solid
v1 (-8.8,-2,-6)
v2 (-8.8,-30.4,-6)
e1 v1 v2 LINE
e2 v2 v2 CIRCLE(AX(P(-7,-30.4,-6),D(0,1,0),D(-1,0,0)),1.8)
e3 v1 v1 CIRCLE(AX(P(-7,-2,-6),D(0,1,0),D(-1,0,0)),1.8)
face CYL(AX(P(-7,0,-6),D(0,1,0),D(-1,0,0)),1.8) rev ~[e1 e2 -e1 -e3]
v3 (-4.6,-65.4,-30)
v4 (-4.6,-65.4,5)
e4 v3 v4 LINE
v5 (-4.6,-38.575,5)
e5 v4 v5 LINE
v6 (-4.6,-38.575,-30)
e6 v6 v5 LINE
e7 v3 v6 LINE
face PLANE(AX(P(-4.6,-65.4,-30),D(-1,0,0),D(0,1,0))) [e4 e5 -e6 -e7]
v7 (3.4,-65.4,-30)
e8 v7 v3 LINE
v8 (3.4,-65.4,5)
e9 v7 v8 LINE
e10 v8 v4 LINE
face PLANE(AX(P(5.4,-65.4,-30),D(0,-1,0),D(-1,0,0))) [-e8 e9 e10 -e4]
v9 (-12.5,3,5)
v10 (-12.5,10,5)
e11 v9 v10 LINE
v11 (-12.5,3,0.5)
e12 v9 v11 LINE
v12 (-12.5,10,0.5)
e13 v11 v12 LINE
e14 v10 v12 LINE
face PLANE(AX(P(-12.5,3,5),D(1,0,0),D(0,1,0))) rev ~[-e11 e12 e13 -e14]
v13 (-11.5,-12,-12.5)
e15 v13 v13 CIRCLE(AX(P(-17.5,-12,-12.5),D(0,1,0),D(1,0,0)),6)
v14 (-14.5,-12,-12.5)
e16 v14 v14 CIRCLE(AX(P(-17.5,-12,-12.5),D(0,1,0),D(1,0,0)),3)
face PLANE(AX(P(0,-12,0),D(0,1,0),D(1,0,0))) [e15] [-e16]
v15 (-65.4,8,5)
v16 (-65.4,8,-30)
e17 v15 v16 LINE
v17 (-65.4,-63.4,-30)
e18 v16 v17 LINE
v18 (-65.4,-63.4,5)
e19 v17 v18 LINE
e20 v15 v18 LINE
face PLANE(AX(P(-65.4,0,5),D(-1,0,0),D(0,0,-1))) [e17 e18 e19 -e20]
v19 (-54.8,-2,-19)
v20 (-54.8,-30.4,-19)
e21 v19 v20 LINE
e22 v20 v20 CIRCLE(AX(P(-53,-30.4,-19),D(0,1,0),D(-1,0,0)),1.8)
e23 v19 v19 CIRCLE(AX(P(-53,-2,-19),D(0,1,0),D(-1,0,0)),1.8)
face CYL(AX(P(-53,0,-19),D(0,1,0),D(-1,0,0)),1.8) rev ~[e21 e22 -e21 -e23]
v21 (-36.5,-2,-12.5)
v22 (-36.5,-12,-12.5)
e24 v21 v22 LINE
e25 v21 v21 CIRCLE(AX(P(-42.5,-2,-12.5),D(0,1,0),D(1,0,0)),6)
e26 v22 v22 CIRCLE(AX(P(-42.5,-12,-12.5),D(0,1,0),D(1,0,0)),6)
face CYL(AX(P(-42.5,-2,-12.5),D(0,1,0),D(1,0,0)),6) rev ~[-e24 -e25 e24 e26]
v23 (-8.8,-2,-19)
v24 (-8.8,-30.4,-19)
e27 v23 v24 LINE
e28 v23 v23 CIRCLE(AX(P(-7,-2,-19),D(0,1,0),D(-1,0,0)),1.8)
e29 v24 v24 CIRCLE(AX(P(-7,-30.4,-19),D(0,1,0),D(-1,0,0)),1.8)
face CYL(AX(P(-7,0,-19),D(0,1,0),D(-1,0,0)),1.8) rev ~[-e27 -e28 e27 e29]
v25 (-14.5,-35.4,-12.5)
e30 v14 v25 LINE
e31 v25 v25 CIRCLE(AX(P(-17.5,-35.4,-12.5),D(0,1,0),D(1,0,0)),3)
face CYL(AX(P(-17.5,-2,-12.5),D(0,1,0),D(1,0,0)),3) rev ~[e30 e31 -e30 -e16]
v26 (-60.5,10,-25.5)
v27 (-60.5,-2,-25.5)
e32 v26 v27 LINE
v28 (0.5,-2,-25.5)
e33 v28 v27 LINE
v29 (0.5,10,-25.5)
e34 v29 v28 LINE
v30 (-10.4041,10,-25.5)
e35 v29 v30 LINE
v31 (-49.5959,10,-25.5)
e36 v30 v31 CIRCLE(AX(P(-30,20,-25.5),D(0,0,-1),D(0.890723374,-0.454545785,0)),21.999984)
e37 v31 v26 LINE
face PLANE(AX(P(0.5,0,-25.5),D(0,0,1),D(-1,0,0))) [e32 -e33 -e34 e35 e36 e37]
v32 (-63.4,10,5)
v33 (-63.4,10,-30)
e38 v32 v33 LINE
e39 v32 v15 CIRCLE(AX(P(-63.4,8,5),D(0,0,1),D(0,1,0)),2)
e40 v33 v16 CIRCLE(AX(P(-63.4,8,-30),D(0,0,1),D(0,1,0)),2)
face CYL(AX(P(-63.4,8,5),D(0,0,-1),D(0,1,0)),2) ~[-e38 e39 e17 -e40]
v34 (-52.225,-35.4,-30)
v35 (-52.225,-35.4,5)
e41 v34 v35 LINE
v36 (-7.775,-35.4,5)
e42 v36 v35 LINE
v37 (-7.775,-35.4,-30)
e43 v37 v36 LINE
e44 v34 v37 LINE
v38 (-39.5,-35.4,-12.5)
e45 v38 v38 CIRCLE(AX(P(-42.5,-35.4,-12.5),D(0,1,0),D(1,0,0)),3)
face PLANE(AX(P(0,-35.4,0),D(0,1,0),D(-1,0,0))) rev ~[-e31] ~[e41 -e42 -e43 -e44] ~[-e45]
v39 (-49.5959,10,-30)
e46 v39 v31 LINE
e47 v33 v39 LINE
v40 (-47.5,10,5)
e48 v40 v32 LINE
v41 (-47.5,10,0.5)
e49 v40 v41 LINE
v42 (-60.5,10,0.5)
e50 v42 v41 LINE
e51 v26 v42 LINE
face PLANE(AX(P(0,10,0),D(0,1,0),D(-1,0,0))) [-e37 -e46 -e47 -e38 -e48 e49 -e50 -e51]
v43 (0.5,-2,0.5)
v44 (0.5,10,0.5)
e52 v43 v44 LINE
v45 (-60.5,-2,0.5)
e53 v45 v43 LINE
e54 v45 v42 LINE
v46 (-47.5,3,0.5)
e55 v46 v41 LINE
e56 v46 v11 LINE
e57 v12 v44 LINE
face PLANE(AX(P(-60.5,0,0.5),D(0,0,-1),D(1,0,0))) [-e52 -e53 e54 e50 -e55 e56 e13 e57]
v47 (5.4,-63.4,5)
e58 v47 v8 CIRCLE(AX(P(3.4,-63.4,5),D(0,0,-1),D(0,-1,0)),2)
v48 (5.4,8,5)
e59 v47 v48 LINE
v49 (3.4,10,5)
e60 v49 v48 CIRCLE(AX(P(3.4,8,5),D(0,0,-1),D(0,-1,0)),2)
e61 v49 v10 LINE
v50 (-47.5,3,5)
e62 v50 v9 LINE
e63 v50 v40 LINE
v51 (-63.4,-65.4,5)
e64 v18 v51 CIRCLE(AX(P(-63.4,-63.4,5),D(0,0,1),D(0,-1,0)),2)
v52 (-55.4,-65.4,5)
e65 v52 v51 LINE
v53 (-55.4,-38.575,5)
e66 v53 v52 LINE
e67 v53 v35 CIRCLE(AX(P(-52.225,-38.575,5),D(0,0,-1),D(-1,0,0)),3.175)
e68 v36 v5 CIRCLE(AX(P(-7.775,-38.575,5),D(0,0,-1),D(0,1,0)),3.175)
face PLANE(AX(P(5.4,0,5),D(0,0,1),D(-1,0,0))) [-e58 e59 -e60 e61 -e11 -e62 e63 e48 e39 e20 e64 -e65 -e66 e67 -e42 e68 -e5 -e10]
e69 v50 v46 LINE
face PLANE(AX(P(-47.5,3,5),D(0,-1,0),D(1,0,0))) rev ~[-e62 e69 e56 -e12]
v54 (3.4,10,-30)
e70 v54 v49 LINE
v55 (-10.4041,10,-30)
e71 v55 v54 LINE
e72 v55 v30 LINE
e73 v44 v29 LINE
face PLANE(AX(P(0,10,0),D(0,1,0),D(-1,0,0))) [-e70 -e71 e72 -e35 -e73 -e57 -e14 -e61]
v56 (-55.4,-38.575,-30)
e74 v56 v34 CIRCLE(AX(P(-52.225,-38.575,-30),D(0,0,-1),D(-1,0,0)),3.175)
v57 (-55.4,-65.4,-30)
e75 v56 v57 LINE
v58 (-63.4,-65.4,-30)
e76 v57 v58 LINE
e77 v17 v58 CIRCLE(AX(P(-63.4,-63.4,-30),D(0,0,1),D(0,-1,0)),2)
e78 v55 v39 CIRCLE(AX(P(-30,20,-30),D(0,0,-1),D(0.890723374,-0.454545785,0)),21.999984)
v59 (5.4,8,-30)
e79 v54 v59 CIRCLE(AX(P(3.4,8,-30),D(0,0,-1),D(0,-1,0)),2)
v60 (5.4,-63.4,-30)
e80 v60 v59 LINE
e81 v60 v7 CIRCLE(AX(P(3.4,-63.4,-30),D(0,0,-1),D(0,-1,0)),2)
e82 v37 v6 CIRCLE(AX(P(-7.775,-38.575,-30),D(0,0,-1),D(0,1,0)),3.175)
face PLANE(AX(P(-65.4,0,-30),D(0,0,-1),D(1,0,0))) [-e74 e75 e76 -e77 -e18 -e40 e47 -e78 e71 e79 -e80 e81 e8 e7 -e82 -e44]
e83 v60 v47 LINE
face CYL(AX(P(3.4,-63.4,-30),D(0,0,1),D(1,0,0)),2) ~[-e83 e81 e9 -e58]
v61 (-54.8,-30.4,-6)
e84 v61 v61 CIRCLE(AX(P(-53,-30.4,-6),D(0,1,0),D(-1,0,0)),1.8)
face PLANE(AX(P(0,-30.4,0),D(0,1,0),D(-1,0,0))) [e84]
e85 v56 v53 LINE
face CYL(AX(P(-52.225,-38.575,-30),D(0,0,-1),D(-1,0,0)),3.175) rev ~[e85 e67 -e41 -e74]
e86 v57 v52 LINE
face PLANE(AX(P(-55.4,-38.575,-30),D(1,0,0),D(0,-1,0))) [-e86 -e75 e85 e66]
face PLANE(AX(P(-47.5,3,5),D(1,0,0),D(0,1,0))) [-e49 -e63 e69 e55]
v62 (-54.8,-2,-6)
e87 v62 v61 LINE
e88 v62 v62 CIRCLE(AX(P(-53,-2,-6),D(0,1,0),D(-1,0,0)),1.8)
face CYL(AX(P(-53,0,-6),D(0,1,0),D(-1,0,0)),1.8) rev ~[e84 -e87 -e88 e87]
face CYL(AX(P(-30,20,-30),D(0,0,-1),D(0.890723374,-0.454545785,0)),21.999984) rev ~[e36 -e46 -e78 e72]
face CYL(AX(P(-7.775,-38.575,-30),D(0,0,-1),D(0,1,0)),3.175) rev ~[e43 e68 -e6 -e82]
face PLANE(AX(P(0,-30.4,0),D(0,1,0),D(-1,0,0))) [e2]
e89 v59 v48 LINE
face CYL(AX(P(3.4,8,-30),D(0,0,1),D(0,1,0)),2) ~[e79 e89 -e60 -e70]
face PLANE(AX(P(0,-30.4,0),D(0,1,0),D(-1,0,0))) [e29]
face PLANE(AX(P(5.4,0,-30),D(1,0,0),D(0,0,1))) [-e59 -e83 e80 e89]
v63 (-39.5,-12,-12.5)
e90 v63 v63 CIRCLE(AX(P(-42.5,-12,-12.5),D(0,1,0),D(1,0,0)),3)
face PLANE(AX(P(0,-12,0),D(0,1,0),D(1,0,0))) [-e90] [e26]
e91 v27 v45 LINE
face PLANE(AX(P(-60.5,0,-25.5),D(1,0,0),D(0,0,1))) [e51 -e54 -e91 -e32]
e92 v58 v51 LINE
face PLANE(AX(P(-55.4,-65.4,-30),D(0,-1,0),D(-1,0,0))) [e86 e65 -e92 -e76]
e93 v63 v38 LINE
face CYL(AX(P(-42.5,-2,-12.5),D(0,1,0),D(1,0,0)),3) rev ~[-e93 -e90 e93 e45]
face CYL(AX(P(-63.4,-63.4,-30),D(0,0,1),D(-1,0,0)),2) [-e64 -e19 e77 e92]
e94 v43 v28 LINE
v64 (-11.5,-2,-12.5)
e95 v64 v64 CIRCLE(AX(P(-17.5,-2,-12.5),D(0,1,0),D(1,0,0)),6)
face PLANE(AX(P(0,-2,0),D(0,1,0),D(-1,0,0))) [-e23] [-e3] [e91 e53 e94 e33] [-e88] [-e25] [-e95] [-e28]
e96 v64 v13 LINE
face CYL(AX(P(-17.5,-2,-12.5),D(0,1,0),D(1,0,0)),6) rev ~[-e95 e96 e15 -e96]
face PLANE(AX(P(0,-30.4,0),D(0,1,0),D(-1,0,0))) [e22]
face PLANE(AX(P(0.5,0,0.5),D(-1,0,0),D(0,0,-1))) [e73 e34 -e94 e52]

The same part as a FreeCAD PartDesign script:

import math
import FreeCAD as App
import Part
import Sketcher

V = App.Vector
Q = App.Units.Quantity


def edges_at(feature, points):
    """Names of the edges that pass closest to the given points."""
    edges = feature.Shape.Edges
    near = lambda p: min(range(len(edges)), key=lambda i: edges[i].distToShape(Part.Vertex(*p))[0])
    return sorted({f"Edge{near(p) + 1}" for p in points})

doc = App.newDocument("Part")
body = doc.addObject("PartDesign::Body", "Body")

# Sketch on XZ plane
sketch1 = body.newObject("Sketcher::SketchObject", "Sketch")
sketch1.AttachmentSupport = (doc.getObject("XZ_Plane"), [""])
sketch1.MapMode = "FlatFace"
sketch1.addGeometry(Part.LineSegment(V(-65, 5, 0), V(5, 5, 0)), False)
sketch1.addGeometry(Part.LineSegment(V(5, 5, 0), V(5, -30, 0)), False)
sketch1.addGeometry(Part.LineSegment(V(5, -30, 0), V(-65, -30, 0)), False)
sketch1.addGeometry(Part.LineSegment(V(-65, -30, 0), V(-65, 5, 0)), False)
sketch1.addConstraint(Sketcher.Constraint("Coincident", 0, 2, 1, 1))
sketch1.addConstraint(Sketcher.Constraint("Coincident", 1, 2, 2, 1))
sketch1.addConstraint(Sketcher.Constraint("Coincident", 2, 2, 3, 1))
sketch1.addConstraint(Sketcher.Constraint("Coincident", 3, 2, 0, 1))
sketch1.addConstraint(Sketcher.Constraint("Horizontal", 0))
sketch1.addConstraint(Sketcher.Constraint("Vertical", 1))
sketch1.addConstraint(Sketcher.Constraint("Horizontal", 2))
sketch1.addConstraint(Sketcher.Constraint("Vertical", 3))
sketch1.addConstraint(Sketcher.Constraint("DistanceY", 1, 2, 1, 1, Q("35 mm")))
sketch1.addConstraint(Sketcher.Constraint("DistanceX", 0, 1, 0, 2, Q("70.8 mm")))
sketch1.addConstraint(Sketcher.Constraint("DistanceY", -1, 1, 0, 2, Q("5 mm")))
sketch1.addConstraint(Sketcher.Constraint("DistanceX", -1, 1, 0, 2, Q("5.4 mm")))
pad1 = body.newObject("PartDesign::Pad", "Pad")
pad1.Profile = sketch1
pad1.Type = "TwoLengths"
pad1.Length = 10
pad1.Length2 = 35.4
pad1.Reversed = True

# Sketch on XZ plane
sketch2 = body.newObject("Sketcher::SketchObject", "Sketch001")
sketch2.AttachmentSupport = (doc.getObject("XZ_Plane"), [""])
sketch2.MapMode = "FlatFace"
sketch2.addGeometry(Part.LineSegment(V(-60.5, -25.5, 0), V(-60.5, 0.5, 0)), False)
sketch2.addGeometry(Part.LineSegment(V(-60.5, 0.5, 0), V(0.5, 0.5, 0)), False)
sketch2.addGeometry(Part.LineSegment(V(0.5, 0.5, 0), V(0.5, -25.5, 0)), False)
sketch2.addGeometry(Part.LineSegment(V(0.5, -25.5, 0), V(-60.5, -25.5, 0)), False)
sketch2.addGeometry(Part.Circle(V(-7, -19, 0), V(0, 0, 1), 1.8), False)
sketch2.addGeometry(Part.Circle(V(-53, -19, 0), V(0, 0, 1), 1.8), False)
sketch2.addGeometry(Part.Circle(V(-7, -6, 0), V(0, 0, 1), 1.8), False)
sketch2.addGeometry(Part.Circle(V(-53, -6, 0), V(0, 0, 1), 1.8), False)
sketch2.addConstraint(Sketcher.Constraint("Coincident", 0, 2, 1, 1))
sketch2.addConstraint(Sketcher.Constraint("Coincident", 1, 2, 2, 1))
sketch2.addConstraint(Sketcher.Constraint("Coincident", 2, 2, 3, 1))
sketch2.addConstraint(Sketcher.Constraint("Coincident", 3, 2, 0, 1))
sketch2.addConstraint(Sketcher.Constraint("Vertical", 0))
sketch2.addConstraint(Sketcher.Constraint("Horizontal", 1))
sketch2.addConstraint(Sketcher.Constraint("Vertical", 2))
sketch2.addConstraint(Sketcher.Constraint("Horizontal", 3))
sketch2.addConstraint(Sketcher.Constraint("Equal", 4, 5))
sketch2.addConstraint(Sketcher.Constraint("Equal", 5, 6))
sketch2.addConstraint(Sketcher.Constraint("Equal", 6, 7))
sketch2.addConstraint(Sketcher.Constraint("Horizontal", 4, 3, 5, 3))
sketch2.addConstraint(Sketcher.Constraint("Horizontal", 6, 3, 7, 3))
sketch2.addConstraint(Sketcher.Constraint("Vertical", 4, 3, 6, 3))
sketch2.addConstraint(Sketcher.Constraint("Vertical", 5, 3, 7, 3))
sketch2.addConstraint(Sketcher.Constraint("Diameter", 4, Q("3.6 mm")))
sketch2.addConstraint(Sketcher.Constraint("DistanceX", 5, 3, 4, 3, Q("46 mm")))
sketch2.addConstraint(Sketcher.Constraint("DistanceY", 4, 3, 6, 3, Q("13 mm")))
sketch2.addConstraint(Sketcher.Constraint("DistanceY", -1, 1, 0, 2, Q("0.5 mm")))
sketch2.addConstraint(Sketcher.Constraint("DistanceX", -1, 1, 1, 2, Q("0.5 mm")))
sketch2.addConstraint(Sketcher.Constraint("DistanceX", 1, 1, 1, 2, Q("61 mm")))
sketch2.addConstraint(Sketcher.Constraint("DistanceY", 0, 1, 0, 2, Q("26 mm")))
sketch2.addConstraint(Sketcher.Constraint("DistanceX", 4, 3, -1, 1, Q("7 mm")))
sketch2.addConstraint(Sketcher.Constraint("DistanceY", 4, 3, -1, 1, Q("19 mm")))
pocket1 = body.newObject("PartDesign::Pocket", "Pocket")
pocket1.Profile = sketch2
pocket1.Type = "TwoLengths"
pocket1.Length = 10
pocket1.Length2 = 2

# Sketch on XZ plane
sketch3 = body.newObject("Sketcher::SketchObject", "Sketch002")
sketch3.AttachmentSupport = (doc.getObject("XZ_Plane"), [""])
sketch3.MapMode = "FlatFace"
sketch3.addGeometry(Part.Circle(V(-53, -19, 0), V(0, 0, 1), 1.8), False)
sketch3.addGeometry(Part.Circle(V(-7, -19, 0), V(0, 0, 1), 1.8), False)
sketch3.addGeometry(Part.Circle(V(-7, -6, 0), V(0, 0, 1), 1.8), False)
sketch3.addGeometry(Part.Circle(V(-53, -6, 0), V(0, 0, 1), 1.8), False)
sketch3.addConstraint(Sketcher.Constraint("Equal", 0, 1))
sketch3.addConstraint(Sketcher.Constraint("Equal", 1, 2))
sketch3.addConstraint(Sketcher.Constraint("Equal", 2, 3))
sketch3.addConstraint(Sketcher.Constraint("Horizontal", 0, 3, 1, 3))
sketch3.addConstraint(Sketcher.Constraint("Horizontal", 2, 3, 3, 3))
sketch3.addConstraint(Sketcher.Constraint("Vertical", 1, 3, 2, 3))
sketch3.addConstraint(Sketcher.Constraint("Vertical", 0, 3, 3, 3))
sketch3.addConstraint(Sketcher.Constraint("Diameter", 0, Q("3.6 mm")))
sketch3.addConstraint(Sketcher.Constraint("DistanceX", 0, 3, 1, 3, Q("46 mm")))
sketch3.addConstraint(Sketcher.Constraint("DistanceY", 1, 3, 2, 3, Q("13 mm")))
sketch3.addConstraint(Sketcher.Constraint("DistanceX", 0, 3, -1, 1, Q("53 mm")))
sketch3.addConstraint(Sketcher.Constraint("DistanceY", 0, 3, -1, 1, Q("19 mm")))
pocket2 = body.newObject("PartDesign::Pocket", "Pocket001")
pocket2.Profile = sketch3
pocket2.Type = "TwoLengths"
pocket2.Length = 10
pocket2.Length2 = 30.4

# Sketch on XY plane
sketch4 = body.newObject("Sketcher::SketchObject", "Sketch003")
sketch4.AttachmentSupport = (doc.getObject("XY_Plane"), [""])
sketch4.MapMode = "FlatFace"
sketch4.AttachmentOffset = App.Placement(V(0, 0, -30), App.Rotation())
sketch4.addGeometry(Part.LineSegment(V(-65.4, -65.4, 0), V(-65.4, -35.4, 0)), False)
sketch4.addGeometry(Part.LineSegment(V(-65.4, -35.4, 0), V(-52.2, -35.4, 0)), False)
sketch4.addGeometry(Part.ArcOfCircle(Part.Circle(V(-52.2, -38.6, 0), V(0, 0, 1), 3.2), math.radians(90), math.radians(180)), False)
sketch4.addGeometry(Part.LineSegment(V(-55.4, -38.6, 0), V(-55.4, -65.4, 0)), False)
sketch4.addGeometry(Part.LineSegment(V(-55.4, -65.4, 0), V(-65.4, -65.4, 0)), False)
sketch4.addGeometry(Part.ArcOfCircle(Part.Circle(V(-7.8, -38.6, 0), V(0, 0, 1), 3.2), math.radians(0), math.radians(90)), False)
sketch4.addGeometry(Part.LineSegment(V(-7.8, -35.4, 0), V(5.4, -35.4, 0)), False)
sketch4.addGeometry(Part.LineSegment(V(5.4, -35.4, 0), V(5.4, -65.4, 0)), False)
sketch4.addGeometry(Part.LineSegment(V(5.4, -65.4, 0), V(-4.6, -65.4, 0)), False)
sketch4.addGeometry(Part.LineSegment(V(-4.6, -65.4, 0), V(-4.6, -38.6, 0)), False)
sketch4.addConstraint(Sketcher.Constraint("Coincident", 0, 2, 1, 1))
sketch4.addConstraint(Sketcher.Constraint("Tangent", 1, 2, 2, 1))
sketch4.addConstraint(Sketcher.Constraint("Tangent", 2, 2, 3, 1))
sketch4.addConstraint(Sketcher.Constraint("Coincident", 3, 2, 4, 1))
sketch4.addConstraint(Sketcher.Constraint("Coincident", 4, 2, 0, 1))
sketch4.addConstraint(Sketcher.Constraint("Tangent", 5, 2, 6, 1))
sketch4.addConstraint(Sketcher.Constraint("Coincident", 6, 2, 7, 1))
sketch4.addConstraint(Sketcher.Constraint("Coincident", 7, 2, 8, 1))
sketch4.addConstraint(Sketcher.Constraint("Coincident", 8, 2, 9, 1))
sketch4.addConstraint(Sketcher.Constraint("Tangent", 9, 2, 5, 1))
sketch4.addConstraint(Sketcher.Constraint("Vertical", 0))
sketch4.addConstraint(Sketcher.Constraint("Horizontal", 1))
sketch4.addConstraint(Sketcher.Constraint("Vertical", 3))
sketch4.addConstraint(Sketcher.Constraint("Horizontal", 4))
sketch4.addConstraint(Sketcher.Constraint("Horizontal", 6))
sketch4.addConstraint(Sketcher.Constraint("Vertical", 7))
sketch4.addConstraint(Sketcher.Constraint("Horizontal", 8))
sketch4.addConstraint(Sketcher.Constraint("Vertical", 9))
sketch4.addConstraint(Sketcher.Constraint("Equal", 2, 5))
sketch4.addConstraint(Sketcher.Constraint("Horizontal", 2, 3, 5, 3))
sketch4.addConstraint(Sketcher.Constraint("Horizontal", 4, 2, 7, 2))
sketch4.addConstraint(Sketcher.Constraint("Equal", 1, 6))
sketch4.addConstraint(Sketcher.Constraint("DistanceX", 4, 2, 4, 1, Q("10 mm")))
sketch4.addConstraint(Sketcher.Constraint("DistanceY", 0, 1, 0, 2, Q("30 mm")))
sketch4.addConstraint(Sketcher.Constraint("Radius", 2, Q("3.175 mm")))
sketch4.addConstraint(Sketcher.Constraint("DistanceX", 3, 2, 8, 2, Q("50.8 mm")))
sketch4.addConstraint(Sketcher.Constraint("DistanceX", 0, 2, -1, 1, Q("65.4 mm")))
sketch4.addConstraint(Sketcher.Constraint("DistanceY", 0, 2, -1, 1, Q("35.4 mm")))
pad2 = body.newObject("PartDesign::Pad", "Pad001")
pad2.Profile = sketch4
pad2.Length = 35

# Sketch on XZ plane
sketch5 = body.newObject("Sketcher::SketchObject", "Sketch004")
sketch5.AttachmentSupport = (doc.getObject("XZ_Plane"), [""])
sketch5.MapMode = "FlatFace"
sketch5.AttachmentOffset = App.Placement(V(0, 0, 2), App.Rotation())
sketch5.addGeometry(Part.Circle(V(-42.5, -12.5, 0), V(0, 0, 1), 3), False)
sketch5.addGeometry(Part.Circle(V(-17.5, -12.5, 0), V(0, 0, 1), 3), False)
sketch5.addConstraint(Sketcher.Constraint("Equal", 0, 1))
sketch5.addConstraint(Sketcher.Constraint("Horizontal", 0, 3, 1, 3))
sketch5.addConstraint(Sketcher.Constraint("Diameter", 0, Q("6 mm")))
sketch5.addConstraint(Sketcher.Constraint("DistanceX", 0, 3, 1, 3, Q("25 mm")))
sketch5.addConstraint(Sketcher.Constraint("DistanceX", 0, 3, -1, 1, Q("42.5 mm")))
sketch5.addConstraint(Sketcher.Constraint("DistanceY", 0, 3, -1, 1, Q("12.5 mm")))
pocket3 = body.newObject("PartDesign::Pocket", "Pocket002")
pocket3.Profile = sketch5
pocket3.Length = 33.4
pocket3.Reversed = True

# Sketch on XZ plane
sketch6 = body.newObject("Sketcher::SketchObject", "Sketch005")
sketch6.AttachmentSupport = (doc.getObject("XZ_Plane"), [""])
sketch6.MapMode = "FlatFace"
sketch6.AttachmentOffset = App.Placement(V(0, 0, 2), App.Rotation())
sketch6.addGeometry(Part.Circle(V(-18, -12, 0), V(0, 0, 1), 6), False)
sketch6.addGeometry(Part.Circle(V(-42, -12, 0), V(0, 0, 1), 6), False)
sketch6.addConstraint(Sketcher.Constraint("Equal", 0, 1))
sketch6.addConstraint(Sketcher.Constraint("Horizontal", 0, 3, 1, 3))
sketch6.addConstraint(Sketcher.Constraint("Diameter", 0, Q("12 mm")))
sketch6.addConstraint(Sketcher.Constraint("DistanceX", 1, 3, 0, 3, Q("25 mm")))
sketch6.addConstraint(Sketcher.Constraint("DistanceX", 0, 3, -1, 1, Q("17.5 mm")))
sketch6.addConstraint(Sketcher.Constraint("DistanceY", 0, 3, -1, 1, Q("12.5 mm")))
pocket4 = body.newObject("PartDesign::Pocket", "Pocket003")
pocket4.Profile = sketch6
pocket4.Length = 10
pocket4.Reversed = True
doc.recompute()

fillet = body.newObject("PartDesign::Fillet", "Fillet")
fillet.Base = (pocket4, edges_at(pocket4, [(-65.4, 10, -12.5), (5.4, 10, -12.5)]))
fillet.Radius = 2
doc.recompute()

fillet2 = body.newObject("PartDesign::Fillet", "Fillet001")
fillet2.Base = (fillet, edges_at(fillet, [(-65.4, -65.4, -12.5), (5.4, -65.4, -12.5)]))
fillet2.Radius = 2

# Sketch on XY plane
sketch7 = body.newObject("Sketcher::SketchObject", "Sketch006")
sketch7.AttachmentSupport = (doc.getObject("XY_Plane"), [""])
sketch7.MapMode = "FlatFace"
sketch7.AttachmentOffset = App.Placement(V(0, 0, 5), App.Rotation())
sketch7.addGeometry(Part.LineSegment(V(-48, 10, 0), V(-48, 3, 0)), False)
sketch7.addGeometry(Part.LineSegment(V(-48, 3, 0), V(-12, 3, 0)), False)
sketch7.addGeometry(Part.LineSegment(V(-12, 3, 0), V(-12, 10, 0)), False)
sketch7.addGeometry(Part.LineSegment(V(-12, 10, 0), V(-48, 10, 0)), False)
sketch7.addConstraint(Sketcher.Constraint("Coincident", 0, 2, 1, 1))
sketch7.addConstraint(Sketcher.Constraint("Coincident", 1, 2, 2, 1))
sketch7.addConstraint(Sketcher.Constraint("Coincident", 2, 2, 3, 1))
sketch7.addConstraint(Sketcher.Constraint("Coincident", 3, 2, 0, 1))
sketch7.addConstraint(Sketcher.Constraint("Vertical", 0))
sketch7.addConstraint(Sketcher.Constraint("Horizontal", 1))
sketch7.addConstraint(Sketcher.Constraint("Vertical", 2))
sketch7.addConstraint(Sketcher.Constraint("Horizontal", 3))
sketch7.addConstraint(Sketcher.Constraint("DistanceX", 1, 1, 1, 2, Q("35 mm")))
sketch7.addConstraint(Sketcher.Constraint("DistanceY", 0, 2, 0, 1, Q("7 mm")))
sketch7.addConstraint(Sketcher.Constraint("DistanceY", -1, 1, 0, 2, Q("3 mm")))
sketch7.addConstraint(Sketcher.Constraint("DistanceX", 0, 2, -1, 1, Q("47.5 mm")))
pocket5 = body.newObject("PartDesign::Pocket", "Pocket004")
pocket5.Profile = sketch7
pocket5.Length = 4.5

# Sketch on XY plane
sketch8 = body.newObject("Sketcher::SketchObject", "Sketch007")
sketch8.AttachmentSupport = (doc.getObject("XY_Plane"), [""])
sketch8.MapMode = "FlatFace"
sketch8.AttachmentOffset = App.Placement(V(0, 0, -30), App.Rotation())
sketch8.addGeometry(Part.LineSegment(V(-50, 10, 0), V(-10, 10, 0)), False)
sketch8.addGeometry(Part.ArcOfCircle(Part.Circle(V(-30, 20, 0), V(0, 0, 1), 22), math.radians(-153), math.radians(-27)), False)
sketch8.addConstraint(Sketcher.Constraint("Coincident", 0, 1, 1, 1))
sketch8.addConstraint(Sketcher.Constraint("Coincident", 1, 2, 0, 2))
sketch8.addConstraint(Sketcher.Constraint("Horizontal", 0))
sketch8.addConstraint(Sketcher.Constraint("Radius", 1, Q("22 mm")))
sketch8.addConstraint(Sketcher.Constraint("DistanceY", -1, 1, 0, 1, Q("10 mm")))
sketch8.addConstraint(Sketcher.Constraint("DistanceY", 0, 1, 1, 3, Q("10 mm")))
sketch8.addConstraint(Sketcher.Constraint("DistanceX", 1, 3, -1, 1, Q("30 mm")))
pocket6 = body.newObject("PartDesign::Pocket", "Pocket005")
pocket6.Profile = sketch8
pocket6.Length = 10
pocket6.Reversed = True

doc.recompute()
